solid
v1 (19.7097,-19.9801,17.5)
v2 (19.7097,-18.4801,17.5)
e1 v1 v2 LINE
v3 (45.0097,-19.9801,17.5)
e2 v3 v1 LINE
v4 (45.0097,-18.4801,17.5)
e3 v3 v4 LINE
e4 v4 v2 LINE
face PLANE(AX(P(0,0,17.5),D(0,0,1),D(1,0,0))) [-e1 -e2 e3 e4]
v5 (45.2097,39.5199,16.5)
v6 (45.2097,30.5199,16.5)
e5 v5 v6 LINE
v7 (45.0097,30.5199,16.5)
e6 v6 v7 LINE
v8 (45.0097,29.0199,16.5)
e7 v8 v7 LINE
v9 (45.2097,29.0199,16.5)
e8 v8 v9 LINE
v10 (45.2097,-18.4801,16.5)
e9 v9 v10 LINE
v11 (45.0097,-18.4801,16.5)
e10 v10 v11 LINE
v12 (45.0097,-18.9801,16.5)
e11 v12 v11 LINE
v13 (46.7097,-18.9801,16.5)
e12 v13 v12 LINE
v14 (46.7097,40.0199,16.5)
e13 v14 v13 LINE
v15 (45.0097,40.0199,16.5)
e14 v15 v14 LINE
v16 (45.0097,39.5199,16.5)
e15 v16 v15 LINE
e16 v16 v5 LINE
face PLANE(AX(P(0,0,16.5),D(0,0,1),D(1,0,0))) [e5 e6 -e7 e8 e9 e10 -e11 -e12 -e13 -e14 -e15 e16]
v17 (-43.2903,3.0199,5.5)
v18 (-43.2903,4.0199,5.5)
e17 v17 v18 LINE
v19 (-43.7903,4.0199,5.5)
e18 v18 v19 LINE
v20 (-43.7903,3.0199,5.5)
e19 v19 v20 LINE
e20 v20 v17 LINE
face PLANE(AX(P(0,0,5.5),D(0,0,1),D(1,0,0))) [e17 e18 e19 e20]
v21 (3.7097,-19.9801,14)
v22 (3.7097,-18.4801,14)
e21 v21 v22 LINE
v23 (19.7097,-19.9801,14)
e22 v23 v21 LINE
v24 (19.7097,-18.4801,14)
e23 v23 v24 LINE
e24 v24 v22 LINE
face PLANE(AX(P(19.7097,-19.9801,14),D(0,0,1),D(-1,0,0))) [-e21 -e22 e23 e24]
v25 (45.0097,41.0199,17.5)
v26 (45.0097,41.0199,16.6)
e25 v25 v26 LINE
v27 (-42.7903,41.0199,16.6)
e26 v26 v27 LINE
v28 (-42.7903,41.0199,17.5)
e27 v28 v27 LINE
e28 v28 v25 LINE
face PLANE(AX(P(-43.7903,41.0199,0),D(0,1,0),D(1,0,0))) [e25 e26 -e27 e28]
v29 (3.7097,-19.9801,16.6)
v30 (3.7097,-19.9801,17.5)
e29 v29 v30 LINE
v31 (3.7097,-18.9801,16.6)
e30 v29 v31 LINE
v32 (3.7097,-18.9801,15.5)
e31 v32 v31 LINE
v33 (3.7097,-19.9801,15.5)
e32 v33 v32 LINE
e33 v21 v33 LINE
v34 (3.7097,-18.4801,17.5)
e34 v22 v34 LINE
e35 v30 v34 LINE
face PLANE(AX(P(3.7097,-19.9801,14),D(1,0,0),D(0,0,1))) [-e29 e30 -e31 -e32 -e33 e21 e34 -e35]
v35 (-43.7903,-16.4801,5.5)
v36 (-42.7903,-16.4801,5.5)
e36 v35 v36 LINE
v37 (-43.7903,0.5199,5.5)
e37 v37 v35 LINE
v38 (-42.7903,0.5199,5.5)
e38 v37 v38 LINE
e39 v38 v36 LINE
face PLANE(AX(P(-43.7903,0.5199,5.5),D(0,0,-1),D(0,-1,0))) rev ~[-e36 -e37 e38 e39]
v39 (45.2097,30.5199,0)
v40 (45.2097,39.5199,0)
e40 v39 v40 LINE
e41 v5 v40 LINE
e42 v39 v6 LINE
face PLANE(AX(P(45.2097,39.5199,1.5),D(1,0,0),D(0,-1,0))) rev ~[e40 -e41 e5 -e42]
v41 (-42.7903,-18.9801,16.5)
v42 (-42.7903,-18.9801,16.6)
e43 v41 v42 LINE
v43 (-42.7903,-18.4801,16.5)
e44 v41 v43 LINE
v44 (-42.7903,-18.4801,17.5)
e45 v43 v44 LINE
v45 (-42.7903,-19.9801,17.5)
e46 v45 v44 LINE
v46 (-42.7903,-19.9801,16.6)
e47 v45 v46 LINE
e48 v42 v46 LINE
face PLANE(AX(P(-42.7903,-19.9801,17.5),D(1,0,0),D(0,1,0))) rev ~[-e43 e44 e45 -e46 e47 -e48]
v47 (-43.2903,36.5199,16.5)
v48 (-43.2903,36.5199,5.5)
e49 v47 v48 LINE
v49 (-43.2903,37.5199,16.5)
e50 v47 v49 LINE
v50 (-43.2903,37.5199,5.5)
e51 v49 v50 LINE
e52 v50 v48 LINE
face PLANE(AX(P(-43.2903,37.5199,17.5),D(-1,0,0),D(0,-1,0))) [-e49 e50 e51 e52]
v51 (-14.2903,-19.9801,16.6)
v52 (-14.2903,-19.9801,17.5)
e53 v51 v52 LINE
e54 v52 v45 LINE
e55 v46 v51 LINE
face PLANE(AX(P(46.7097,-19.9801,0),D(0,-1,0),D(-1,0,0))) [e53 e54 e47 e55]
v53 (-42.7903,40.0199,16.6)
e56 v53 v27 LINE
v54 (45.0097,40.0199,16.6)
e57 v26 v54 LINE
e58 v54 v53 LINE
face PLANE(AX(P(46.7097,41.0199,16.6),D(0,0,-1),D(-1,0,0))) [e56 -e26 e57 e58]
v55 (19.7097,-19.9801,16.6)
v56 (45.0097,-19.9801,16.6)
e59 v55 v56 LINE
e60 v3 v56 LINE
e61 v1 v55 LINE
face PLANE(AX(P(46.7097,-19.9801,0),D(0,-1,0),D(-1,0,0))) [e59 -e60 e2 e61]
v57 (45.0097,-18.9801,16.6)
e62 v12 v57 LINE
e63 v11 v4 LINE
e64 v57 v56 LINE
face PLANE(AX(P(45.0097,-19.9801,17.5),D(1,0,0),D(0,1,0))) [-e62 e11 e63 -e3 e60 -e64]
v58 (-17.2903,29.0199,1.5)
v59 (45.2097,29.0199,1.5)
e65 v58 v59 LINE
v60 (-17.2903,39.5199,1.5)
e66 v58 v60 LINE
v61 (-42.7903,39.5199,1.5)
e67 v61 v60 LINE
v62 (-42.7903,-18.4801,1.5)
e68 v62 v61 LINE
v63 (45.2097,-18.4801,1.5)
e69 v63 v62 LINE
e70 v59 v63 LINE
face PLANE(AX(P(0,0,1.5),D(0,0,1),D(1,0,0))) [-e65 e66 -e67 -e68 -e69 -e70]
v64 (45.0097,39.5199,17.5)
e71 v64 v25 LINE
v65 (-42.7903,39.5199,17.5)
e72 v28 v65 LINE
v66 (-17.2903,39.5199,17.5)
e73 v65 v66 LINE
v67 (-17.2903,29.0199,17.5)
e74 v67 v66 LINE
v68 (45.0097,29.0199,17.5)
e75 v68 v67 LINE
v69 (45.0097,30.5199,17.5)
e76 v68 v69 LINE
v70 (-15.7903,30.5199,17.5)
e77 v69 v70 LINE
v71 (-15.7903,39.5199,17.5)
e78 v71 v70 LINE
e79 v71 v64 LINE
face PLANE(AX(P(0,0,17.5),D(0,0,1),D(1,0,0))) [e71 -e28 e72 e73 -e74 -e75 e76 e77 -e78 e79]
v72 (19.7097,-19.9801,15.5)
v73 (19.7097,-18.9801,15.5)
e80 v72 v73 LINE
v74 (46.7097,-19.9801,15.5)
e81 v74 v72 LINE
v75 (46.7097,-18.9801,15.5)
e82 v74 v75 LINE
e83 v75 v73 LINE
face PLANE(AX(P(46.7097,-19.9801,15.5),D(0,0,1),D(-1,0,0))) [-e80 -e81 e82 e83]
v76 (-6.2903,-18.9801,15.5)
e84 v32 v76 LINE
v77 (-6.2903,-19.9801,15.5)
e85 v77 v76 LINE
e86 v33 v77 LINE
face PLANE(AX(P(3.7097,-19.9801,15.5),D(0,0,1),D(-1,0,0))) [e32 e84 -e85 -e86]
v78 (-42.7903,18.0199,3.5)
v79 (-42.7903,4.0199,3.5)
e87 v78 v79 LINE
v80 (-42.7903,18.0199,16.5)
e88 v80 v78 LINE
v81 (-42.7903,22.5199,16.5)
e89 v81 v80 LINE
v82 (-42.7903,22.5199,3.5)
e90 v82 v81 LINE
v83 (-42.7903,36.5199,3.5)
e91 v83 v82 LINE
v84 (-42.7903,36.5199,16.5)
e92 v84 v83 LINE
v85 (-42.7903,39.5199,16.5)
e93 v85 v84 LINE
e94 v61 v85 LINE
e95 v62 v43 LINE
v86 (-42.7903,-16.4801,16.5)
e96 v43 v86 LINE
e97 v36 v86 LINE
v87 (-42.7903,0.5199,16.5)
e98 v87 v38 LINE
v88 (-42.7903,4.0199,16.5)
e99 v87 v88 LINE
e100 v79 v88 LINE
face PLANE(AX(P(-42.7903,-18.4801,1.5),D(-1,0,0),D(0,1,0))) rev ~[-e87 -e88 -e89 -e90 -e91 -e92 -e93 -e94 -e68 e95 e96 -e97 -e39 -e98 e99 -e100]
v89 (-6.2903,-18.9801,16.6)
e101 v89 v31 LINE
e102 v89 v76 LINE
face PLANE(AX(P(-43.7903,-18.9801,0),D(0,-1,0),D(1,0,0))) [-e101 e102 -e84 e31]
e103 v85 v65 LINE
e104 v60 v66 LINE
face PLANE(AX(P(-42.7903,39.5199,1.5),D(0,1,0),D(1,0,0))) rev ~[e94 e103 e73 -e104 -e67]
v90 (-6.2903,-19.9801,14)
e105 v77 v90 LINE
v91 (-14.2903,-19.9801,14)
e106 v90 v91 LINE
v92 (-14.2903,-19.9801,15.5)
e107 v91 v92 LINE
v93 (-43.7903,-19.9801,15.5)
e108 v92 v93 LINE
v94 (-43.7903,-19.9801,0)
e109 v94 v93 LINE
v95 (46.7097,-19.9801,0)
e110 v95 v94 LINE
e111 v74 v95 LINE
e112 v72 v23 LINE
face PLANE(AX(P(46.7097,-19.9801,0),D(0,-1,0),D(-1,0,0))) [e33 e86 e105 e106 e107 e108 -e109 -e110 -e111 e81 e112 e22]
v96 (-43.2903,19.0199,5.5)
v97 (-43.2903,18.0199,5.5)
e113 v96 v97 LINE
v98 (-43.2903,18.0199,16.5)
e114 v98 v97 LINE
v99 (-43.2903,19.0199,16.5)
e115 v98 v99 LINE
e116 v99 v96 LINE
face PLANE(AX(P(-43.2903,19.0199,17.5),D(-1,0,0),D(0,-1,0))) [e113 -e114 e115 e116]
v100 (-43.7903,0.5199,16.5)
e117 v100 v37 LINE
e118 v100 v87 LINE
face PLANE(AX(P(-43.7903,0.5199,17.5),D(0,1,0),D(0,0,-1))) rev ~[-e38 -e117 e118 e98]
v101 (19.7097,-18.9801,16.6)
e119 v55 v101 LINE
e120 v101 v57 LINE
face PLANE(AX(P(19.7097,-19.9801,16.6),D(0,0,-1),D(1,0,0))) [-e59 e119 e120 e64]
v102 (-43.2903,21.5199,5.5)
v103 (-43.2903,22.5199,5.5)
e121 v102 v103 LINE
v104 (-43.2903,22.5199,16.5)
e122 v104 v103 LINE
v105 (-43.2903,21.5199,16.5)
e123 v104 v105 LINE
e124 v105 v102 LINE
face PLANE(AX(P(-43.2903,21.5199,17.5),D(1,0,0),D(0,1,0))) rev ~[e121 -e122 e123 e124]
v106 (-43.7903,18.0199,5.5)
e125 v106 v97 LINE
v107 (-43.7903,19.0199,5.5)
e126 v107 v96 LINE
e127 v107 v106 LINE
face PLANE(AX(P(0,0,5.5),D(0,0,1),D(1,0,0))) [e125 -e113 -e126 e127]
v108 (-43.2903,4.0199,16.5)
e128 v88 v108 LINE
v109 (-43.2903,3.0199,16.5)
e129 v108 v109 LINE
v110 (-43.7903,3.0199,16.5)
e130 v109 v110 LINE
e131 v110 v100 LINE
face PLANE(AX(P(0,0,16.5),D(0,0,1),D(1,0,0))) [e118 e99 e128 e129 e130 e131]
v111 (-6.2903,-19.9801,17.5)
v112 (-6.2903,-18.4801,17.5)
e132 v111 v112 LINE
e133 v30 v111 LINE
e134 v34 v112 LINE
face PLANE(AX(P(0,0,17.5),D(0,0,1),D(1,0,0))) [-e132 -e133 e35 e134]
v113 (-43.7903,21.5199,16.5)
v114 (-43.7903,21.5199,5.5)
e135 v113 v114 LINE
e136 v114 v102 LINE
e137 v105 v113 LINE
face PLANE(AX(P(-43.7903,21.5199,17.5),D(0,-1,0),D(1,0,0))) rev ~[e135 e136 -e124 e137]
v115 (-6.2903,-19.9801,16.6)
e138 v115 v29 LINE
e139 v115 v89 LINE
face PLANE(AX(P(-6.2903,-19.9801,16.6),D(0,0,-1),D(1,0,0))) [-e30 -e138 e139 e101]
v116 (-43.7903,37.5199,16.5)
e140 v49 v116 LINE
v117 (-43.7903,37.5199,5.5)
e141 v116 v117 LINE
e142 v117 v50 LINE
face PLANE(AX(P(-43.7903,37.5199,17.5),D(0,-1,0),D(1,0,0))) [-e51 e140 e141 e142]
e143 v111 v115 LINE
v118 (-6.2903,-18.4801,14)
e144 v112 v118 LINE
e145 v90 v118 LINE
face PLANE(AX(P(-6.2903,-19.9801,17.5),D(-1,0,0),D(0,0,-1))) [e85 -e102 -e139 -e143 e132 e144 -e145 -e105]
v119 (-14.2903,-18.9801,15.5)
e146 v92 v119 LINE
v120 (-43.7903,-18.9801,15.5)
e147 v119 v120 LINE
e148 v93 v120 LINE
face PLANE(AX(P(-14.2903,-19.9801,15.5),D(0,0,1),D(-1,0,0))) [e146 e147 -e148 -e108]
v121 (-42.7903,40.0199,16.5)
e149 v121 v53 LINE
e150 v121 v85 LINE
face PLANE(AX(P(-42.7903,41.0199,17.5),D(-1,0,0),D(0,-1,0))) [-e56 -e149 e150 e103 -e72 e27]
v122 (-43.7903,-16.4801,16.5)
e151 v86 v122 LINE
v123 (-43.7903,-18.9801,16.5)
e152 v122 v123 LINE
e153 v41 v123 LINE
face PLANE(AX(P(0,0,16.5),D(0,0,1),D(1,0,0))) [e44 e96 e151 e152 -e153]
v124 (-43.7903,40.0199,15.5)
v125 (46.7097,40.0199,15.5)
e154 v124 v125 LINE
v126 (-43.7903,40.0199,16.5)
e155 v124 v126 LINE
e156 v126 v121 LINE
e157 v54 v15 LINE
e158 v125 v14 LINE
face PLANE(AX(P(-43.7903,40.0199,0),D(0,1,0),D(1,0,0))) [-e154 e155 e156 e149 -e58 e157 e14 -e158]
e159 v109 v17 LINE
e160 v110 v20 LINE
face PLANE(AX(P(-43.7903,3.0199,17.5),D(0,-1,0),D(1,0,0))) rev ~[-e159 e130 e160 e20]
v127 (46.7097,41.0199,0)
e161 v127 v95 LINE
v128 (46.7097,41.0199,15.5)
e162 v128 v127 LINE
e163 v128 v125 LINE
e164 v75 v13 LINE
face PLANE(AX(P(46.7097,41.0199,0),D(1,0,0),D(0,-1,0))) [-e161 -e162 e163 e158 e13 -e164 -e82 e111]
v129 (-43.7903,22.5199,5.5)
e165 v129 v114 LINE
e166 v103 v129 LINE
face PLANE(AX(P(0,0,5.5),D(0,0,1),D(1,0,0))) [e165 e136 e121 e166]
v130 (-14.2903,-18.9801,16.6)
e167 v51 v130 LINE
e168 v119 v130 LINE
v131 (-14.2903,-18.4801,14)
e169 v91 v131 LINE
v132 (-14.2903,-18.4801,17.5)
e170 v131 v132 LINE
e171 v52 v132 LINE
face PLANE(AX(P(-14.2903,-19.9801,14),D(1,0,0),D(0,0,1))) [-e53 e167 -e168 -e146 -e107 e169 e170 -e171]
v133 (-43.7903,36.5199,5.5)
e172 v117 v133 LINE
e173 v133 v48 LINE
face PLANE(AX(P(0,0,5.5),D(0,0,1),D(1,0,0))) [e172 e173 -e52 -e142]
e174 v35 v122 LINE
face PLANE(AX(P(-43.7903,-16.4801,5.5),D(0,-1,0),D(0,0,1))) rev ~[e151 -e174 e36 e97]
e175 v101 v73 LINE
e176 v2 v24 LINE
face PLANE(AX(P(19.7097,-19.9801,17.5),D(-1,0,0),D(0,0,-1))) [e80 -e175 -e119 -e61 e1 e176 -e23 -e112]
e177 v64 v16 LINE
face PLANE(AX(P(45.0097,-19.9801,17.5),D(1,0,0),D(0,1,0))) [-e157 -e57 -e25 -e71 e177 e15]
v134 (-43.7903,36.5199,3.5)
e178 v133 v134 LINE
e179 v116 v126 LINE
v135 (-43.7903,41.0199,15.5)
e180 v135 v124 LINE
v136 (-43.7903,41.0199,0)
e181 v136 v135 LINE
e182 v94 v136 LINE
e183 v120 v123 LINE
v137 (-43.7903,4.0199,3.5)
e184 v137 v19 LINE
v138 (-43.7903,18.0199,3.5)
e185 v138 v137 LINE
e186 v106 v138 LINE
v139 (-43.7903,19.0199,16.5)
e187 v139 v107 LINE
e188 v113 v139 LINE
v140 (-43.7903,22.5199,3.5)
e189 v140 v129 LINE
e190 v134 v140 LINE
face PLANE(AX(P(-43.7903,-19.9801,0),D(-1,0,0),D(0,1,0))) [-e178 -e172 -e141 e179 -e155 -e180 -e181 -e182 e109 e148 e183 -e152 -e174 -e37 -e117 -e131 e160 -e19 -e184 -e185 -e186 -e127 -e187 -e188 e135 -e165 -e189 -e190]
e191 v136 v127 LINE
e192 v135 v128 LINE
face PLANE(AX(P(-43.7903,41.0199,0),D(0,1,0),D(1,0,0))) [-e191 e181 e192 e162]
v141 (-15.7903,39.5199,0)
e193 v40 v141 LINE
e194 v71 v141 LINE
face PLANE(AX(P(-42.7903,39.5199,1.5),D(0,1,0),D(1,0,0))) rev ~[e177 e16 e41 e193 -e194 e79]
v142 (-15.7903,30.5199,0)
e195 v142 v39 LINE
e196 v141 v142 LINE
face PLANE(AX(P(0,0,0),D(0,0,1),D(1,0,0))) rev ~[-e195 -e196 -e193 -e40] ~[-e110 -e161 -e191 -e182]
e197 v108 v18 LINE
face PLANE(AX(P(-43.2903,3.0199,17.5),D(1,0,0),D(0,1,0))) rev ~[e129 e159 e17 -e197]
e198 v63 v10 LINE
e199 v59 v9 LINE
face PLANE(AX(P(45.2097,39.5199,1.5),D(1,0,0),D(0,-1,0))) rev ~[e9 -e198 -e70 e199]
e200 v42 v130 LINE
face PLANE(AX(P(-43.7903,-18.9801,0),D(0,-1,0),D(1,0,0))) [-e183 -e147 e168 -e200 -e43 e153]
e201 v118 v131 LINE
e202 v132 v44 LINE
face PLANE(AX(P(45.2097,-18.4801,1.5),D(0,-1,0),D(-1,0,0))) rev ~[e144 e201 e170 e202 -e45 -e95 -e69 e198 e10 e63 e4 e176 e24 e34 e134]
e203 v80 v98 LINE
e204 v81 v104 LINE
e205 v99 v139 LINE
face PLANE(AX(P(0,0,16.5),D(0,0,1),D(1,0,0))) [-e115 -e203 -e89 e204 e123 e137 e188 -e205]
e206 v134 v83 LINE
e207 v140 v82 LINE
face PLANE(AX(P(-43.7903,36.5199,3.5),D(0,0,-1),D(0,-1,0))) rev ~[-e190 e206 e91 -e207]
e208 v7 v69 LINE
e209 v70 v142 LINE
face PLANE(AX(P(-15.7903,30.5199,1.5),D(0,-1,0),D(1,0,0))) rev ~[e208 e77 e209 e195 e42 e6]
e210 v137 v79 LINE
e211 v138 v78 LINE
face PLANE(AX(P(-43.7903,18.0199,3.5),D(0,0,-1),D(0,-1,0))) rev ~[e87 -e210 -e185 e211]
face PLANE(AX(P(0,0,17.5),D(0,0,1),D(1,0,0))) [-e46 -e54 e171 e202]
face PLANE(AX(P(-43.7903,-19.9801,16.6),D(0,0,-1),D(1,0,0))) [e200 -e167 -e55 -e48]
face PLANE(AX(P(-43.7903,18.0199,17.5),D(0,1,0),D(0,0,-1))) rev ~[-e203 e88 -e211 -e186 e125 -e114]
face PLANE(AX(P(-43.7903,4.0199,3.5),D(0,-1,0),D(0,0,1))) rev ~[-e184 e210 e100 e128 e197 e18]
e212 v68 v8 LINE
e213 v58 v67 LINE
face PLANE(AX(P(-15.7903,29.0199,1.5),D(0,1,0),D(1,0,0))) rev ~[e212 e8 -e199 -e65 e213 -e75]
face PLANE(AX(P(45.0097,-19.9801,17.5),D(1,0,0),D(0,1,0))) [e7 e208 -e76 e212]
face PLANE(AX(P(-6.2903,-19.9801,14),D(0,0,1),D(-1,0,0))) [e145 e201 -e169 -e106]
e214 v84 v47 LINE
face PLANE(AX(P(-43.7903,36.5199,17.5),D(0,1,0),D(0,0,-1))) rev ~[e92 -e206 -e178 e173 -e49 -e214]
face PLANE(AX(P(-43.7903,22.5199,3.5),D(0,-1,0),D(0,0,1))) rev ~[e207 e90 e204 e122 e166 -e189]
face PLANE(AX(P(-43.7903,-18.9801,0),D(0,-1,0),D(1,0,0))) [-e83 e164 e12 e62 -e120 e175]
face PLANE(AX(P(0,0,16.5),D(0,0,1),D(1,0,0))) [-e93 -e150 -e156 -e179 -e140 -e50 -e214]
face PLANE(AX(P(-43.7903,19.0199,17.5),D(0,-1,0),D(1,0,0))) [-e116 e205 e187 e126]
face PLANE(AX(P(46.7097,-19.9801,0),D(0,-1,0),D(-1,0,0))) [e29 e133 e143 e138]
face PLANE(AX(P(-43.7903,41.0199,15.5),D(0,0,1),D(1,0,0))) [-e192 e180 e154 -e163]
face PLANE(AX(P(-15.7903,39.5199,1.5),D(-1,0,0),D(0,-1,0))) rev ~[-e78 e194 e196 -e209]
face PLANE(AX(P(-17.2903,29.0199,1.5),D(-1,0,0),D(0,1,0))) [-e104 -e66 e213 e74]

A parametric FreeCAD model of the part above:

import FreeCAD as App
import Part
import Sketcher
from FreeCAD import Vector

doc = App.newDocument("Part")
body = doc.addObject("PartDesign::Body", "Body")

# Sketch on XY plane
sketch1 = body.newObject("Sketcher::SketchObject", "Sketch")
sketch1.AttachmentSupport = (doc.getObject("XY_Plane"), [""])
sketch1.MapMode = "FlatFace"
sketch1.addGeometry([
    Part.LineSegment(Vector(46.7097, 41.0199, 0), Vector(-43.7903, 41.0199, 0)),
    Part.LineSegment(Vector(-43.7903, 41.0199, 0), Vector(-43.7903, -19.9801, 0)),
    Part.LineSegment(Vector(-43.7903, -19.9801, 0), Vector(46.7097, -19.9801, 0)),
    Part.LineSegment(Vector(46.7097, -19.9801, 0), Vector(46.7097, 41.0199, 0)),
], False)
sketch1.addConstraint([
    Sketcher.Constraint("Coincident", 0, 2, 1, 1),
    Sketcher.Constraint("Coincident", 1, 2, 2, 1),
    Sketcher.Constraint("Coincident", 2, 2, 3, 1),
    Sketcher.Constraint("Coincident", 3, 2, 0, 1),
    Sketcher.Constraint("Horizontal", 0),
    Sketcher.Constraint("Vertical", 1),
    Sketcher.Constraint("Horizontal", 2),
    Sketcher.Constraint("Vertical", 3),
    Sketcher.Constraint("DistanceY", 1, 2, 1, 1, 61.0),
    Sketcher.Constraint("DistanceX", 0, 2, 0, 1, 90.5),
    Sketcher.Constraint("DistanceY", -1, 1, 0, 2, 41.02),
    Sketcher.Constraint("DistanceX", 0, 2, -1, 1, 43.7903),
])
pad1 = body.newObject("PartDesign::Pad", "Pad")
pad1.Profile = sketch1
pad1.Length = 1.5

# Sketch on XY plane
sketch2 = body.newObject("Sketcher::SketchObject", "Sketch001")
sketch2.AttachmentSupport = (doc.getObject("XY_Plane"), [""])
sketch2.MapMode = "FlatFace"
sketch2.AttachmentOffset = App.Placement(Vector(0, 0, 1.5), App.Rotation())
sketch2.addGeometry([
    Part.LineSegment(Vector(46.7097, 41.0199, 0), Vector(-43.7903, 41.0199, 0)),  # 0
    Part.LineSegment(Vector(-43.7903, 41.0199, 0), Vector(-43.7903, -19.9801, 0)),  # 1
    Part.LineSegment(Vector(-43.7903, -19.9801, 0), Vector(46.7097, -19.9801, 0)),  # 2
    Part.LineSegment(Vector(46.7097, -19.9801, 0), Vector(46.7097, 41.0199, 0)),  # 3
    Part.LineSegment(Vector(-42.7903, -18.4801, 0), Vector(-42.7903, 39.5199, 0)),  # 4
    Part.LineSegment(Vector(-42.7903, 39.5199, 0), Vector(45.2097, 39.5199, 0)),  # 5
    Part.LineSegment(Vector(45.2097, 39.5199, 0), Vector(45.2097, -18.4801, 0)),  # 6
    Part.LineSegment(Vector(45.2097, -18.4801, 0), Vector(-42.7903, -18.4801, 0)),  # 7
], False)
sketch2.addConstraint([
    Sketcher.Constraint("Coincident", 0, 2, 1, 1),
    Sketcher.Constraint("Coincident", 1, 2, 2, 1),
    Sketcher.Constraint("Coincident", 2, 2, 3, 1),
    Sketcher.Constraint("Coincident", 3, 2, 0, 1),
    Sketcher.Constraint("Coincident", 4, 2, 5, 1),
    Sketcher.Constraint("Coincident", 5, 2, 6, 1),
    Sketcher.Constraint("Coincident", 6, 2, 7, 1),
    Sketcher.Constraint("Coincident", 7, 2, 4, 1),
    Sketcher.Constraint("Horizontal", 0),
    Sketcher.Constraint("Vertical", 1),
    Sketcher.Constraint("Horizontal", 2),
    Sketcher.Constraint("Vertical", 3),
    Sketcher.Constraint("Vertical", 4),
    Sketcher.Constraint("Horizontal", 5),
    Sketcher.Constraint("Vertical", 6),
    Sketcher.Constraint("Horizontal", 7),
    Sketcher.Constraint("DistanceX", 0, 2, 4, 2, 1.0),
    Sketcher.Constraint("DistanceY", 4, 2, 0, 2, 1.5),
    Sketcher.Constraint("DistanceX", 5, 2, 3, 2, 1.5),
    Sketcher.Constraint("DistanceY", 2, 2, 6, 2, 1.5),
    Sketcher.Constraint("DistanceX", 5, 1, 5, 2, 88.0),
    Sketcher.Constraint("DistanceY", 1, 2, 1, 1, 61.0),
    Sketcher.Constraint("DistanceY", -1, 1, 0, 2, 41.02),
    Sketcher.Constraint("DistanceX", 0, 2, -1, 1, 43.7903),
])
pad2 = body.newObject("PartDesign::Pad", "Pad001")
pad2.Profile = sketch2
pad2.Length = 16

# Sketch on YZ plane
sketch3 = body.newObject("Sketcher::SketchObject", "Sketch002")
sketch3.AttachmentSupport = (doc.getObject("YZ_Plane"), [""])
sketch3.MapMode = "FlatFace"
sketch3.AttachmentOffset = App.Placement(Vector(0, 0, -43.7903), App.Rotation())
sketch3.addGeometry([
    Part.LineSegment(Vector(-16.4801, 5.5, 0), Vector(-16.4801, 17.5, 0)),  # 0
    Part.LineSegment(Vector(-16.4801, 17.5, 0), Vector(0.5199, 17.5, 0)),  # 1
    Part.LineSegment(Vector(0.5199, 17.5, 0), Vector(0.5199, 5.5, 0)),  # 2
    Part.LineSegment(Vector(0.5199, 5.5, 0), Vector(-16.4801, 5.5, 0)),  # 3
    Part.LineSegment(Vector(22.5199, 3.5, 0), Vector(22.5199, 17.5, 0)),  # 4
    Part.LineSegment(Vector(22.5199, 17.5, 0), Vector(36.5199, 17.5, 0)),  # 5
    Part.LineSegment(Vector(36.5199, 17.5, 0), Vector(36.5199, 3.5, 0)),  # 6
    Part.LineSegment(Vector(36.5199, 3.5, 0), Vector(22.5199, 3.5, 0)),  # 7
    Part.LineSegment(Vector(4.0199, 3.5, 0), Vector(4.0199, 17.5, 0)),  # 8
    Part.LineSegment(Vector(4.0199, 17.5, 0), Vector(18.0199, 17.5, 0)),  # 9
    Part.LineSegment(Vector(18.0199, 17.5, 0), Vector(18.0199, 3.5, 0)),  # 10
    Part.LineSegment(Vector(18.0199, 3.5, 0), Vector(4.0199, 3.5, 0)),  # 11
], False)
sketch3.addConstraint([
    Sketcher.Constraint("Coincident", 0, 2, 1, 1),
    Sketcher.Constraint("Coincident", 1, 2, 2, 1),
    Sketcher.Constraint("Coincident", 2, 2, 3, 1),
    Sketcher.Constraint("Coincident", 3, 2, 0, 1),
    Sketcher.Constraint("Coincident", 4, 2, 5, 1),
    Sketcher.Constraint("Coincident", 5, 2, 6, 1),
    Sketcher.Constraint("Coincident", 6, 2, 7, 1),
    Sketcher.Constraint("Coincident", 7, 2, 4, 1),
    Sketcher.Constraint("Coincident", 8, 2, 9, 1),
    Sketcher.Constraint("Coincident", 9, 2, 10, 1),
    Sketcher.Constraint("Coincident", 10, 2, 11, 1),
    Sketcher.Constraint("Coincident", 11, 2, 8, 1),
    Sketcher.Constraint("Vertical", 0),
    Sketcher.Constraint("Horizontal", 1),
    Sketcher.Constraint("Vertical", 2),
    Sketcher.Constraint("Horizontal", 3),
    Sketcher.Constraint("Vertical", 4),
    Sketcher.Constraint("Horizontal", 5),
    Sketcher.Constraint("Vertical", 6),
    Sketcher.Constraint("Horizontal", 7),
    Sketcher.Constraint("Vertical", 8),
    Sketcher.Constraint("Horizontal", 9),
    Sketcher.Constraint("Vertical", 10),
    Sketcher.Constraint("Horizontal", 11),
    Sketcher.Constraint("Horizontal", 1, 2, 4, 2),
    Sketcher.Constraint("Horizontal", 5, 2, 8, 2),
    Sketcher.Constraint("Horizontal", 7, 2, 10, 2),
    Sketcher.Constraint("Equal", 7, 9),
    Sketcher.Constraint("Equal", 11, 4),
    Sketcher.Constraint("DistanceX", 1, 1, 1, 2, 17.0),
    Sketcher.Constraint("DistanceX", 5, 1, 5, 2, 14.0),
    Sketcher.Constraint("DistanceY", 0, 1, 0, 2, 12.0),
    Sketcher.Constraint("DistanceY", -1, 1, 6, 2, 3.5),
    Sketcher.Constraint("DistanceX", 1, 2, 8, 2, 3.5),
    Sketcher.Constraint("DistanceX", 9, 2, 4, 2, 4.5),
    Sketcher.Constraint("DistanceX", 0, 2, -1, 1, 16.48),
])
pocket1 = body.newObject("PartDesign::Pocket", "Pocket")
pocket1.Profile = sketch3
pocket1.Length = 1
pocket1.Reversed = True

# Sketch on XY plane
sketch4 = body.newObject("Sketcher::SketchObject", "Sketch003")
sketch4.AttachmentSupport = (doc.getObject("XY_Plane"), [""])
sketch4.MapMode = "FlatFace"
sketch4.AttachmentOffset = App.Placement(Vector(0, 0, 1.5), App.Rotation())
sketch4.addGeometry([
    Part.LineSegment(Vector(45.2097, 30.5199, 0), Vector(45.2097, 39.5199, 0)),
    Part.LineSegment(Vector(45.2097, 39.5199, 0), Vector(-15.7903, 39.5199, 0)),
    Part.LineSegment(Vector(-15.7903, 39.5199, 0), Vector(-15.7903, 30.5199, 0)),
    Part.LineSegment(Vector(-15.7903, 30.5199, 0), Vector(45.2097, 30.5199, 0)),
], False)
sketch4.addConstraint([
    Sketcher.Constraint("Coincident", 0, 2, 1, 1),
    Sketcher.Constraint("Coincident", 1, 2, 2, 1),
    Sketcher.Constraint("Coincident", 2, 2, 3, 1),
    Sketcher.Constraint("Coincident", 3, 2, 0, 1),
    Sketcher.Constraint("Vertical", 0),
    Sketcher.Constraint("Horizontal", 1),
    Sketcher.Constraint("Vertical", 2),
    Sketcher.Constraint("Horizontal", 3),
    Sketcher.Constraint("DistanceX", 1, 2, 1, 1, 61.0),
    Sketcher.Constraint("DistanceY", 0, 1, 0, 2, 9.0),
    Sketcher.Constraint("DistanceY", -1, 1, 0, 2, 39.52),
    Sketcher.Constraint("DistanceX", -1, 1, 0, 2, 45.2097),
])
pocket2 = body.newObject("PartDesign::Pocket", "Pocket001")
pocket2.Profile = sketch4
pocket2.Length = 1.5

# Sketch on XY plane
sketch5 = body.newObject("Sketcher::SketchObject", "Sketch004")
sketch5.AttachmentSupport = (doc.getObject("XY_Plane"), [""])
sketch5.MapMode = "FlatFace"
sketch5.AttachmentOffset = App.Placement(Vector(0, 0, 1.5), App.Rotation())
sketch5.addGeometry([
    Part.LineSegment(Vector(45.2097, 29.0199, 0), Vector(45.2097, 30.5199, 0)),  # 0
    Part.LineSegment(Vector(45.2097, 30.5199, 0), Vector(-15.7903, 30.5199, 0)),  # 1
    Part.LineSegment(Vector(-15.7903, 30.5199, 0), Vector(-15.7903, 39.5199, 0)),  # 2
    Part.LineSegment(Vector(-15.7903, 39.5199, 0), Vector(-17.2903, 39.5199, 0)),  # 3
    Part.LineSegment(Vector(-17.2903, 39.5199, 0), Vector(-17.2903, 29.0199, 0)),  # 4
    Part.LineSegment(Vector(-17.2903, 29.0199, 0), Vector(45.2097, 29.0199, 0)),  # 5
], False)
sketch5.addConstraint([
    Sketcher.Constraint("Coincident", 0, 2, 1, 1),
    Sketcher.Constraint("Coincident", 1, 2, 2, 1),
    Sketcher.Constraint("Coincident", 2, 2, 3, 1),
    Sketcher.Constraint("Coincident", 3, 2, 4, 1),
    Sketcher.Constraint("Coincident", 4, 2, 5, 1),
    Sketcher.Constraint("Coincident", 5, 2, 0, 1),
    Sketcher.Constraint("Vertical", 0),
    Sketcher.Constraint("Horizontal", 1),
    Sketcher.Constraint("Vertical", 2),
    Sketcher.Constraint("Horizontal", 3),
    Sketcher.Constraint("Vertical", 4),
    Sketcher.Constraint("Horizontal", 5),
    Sketcher.Constraint("Equal", 3, 0),
    Sketcher.Constraint("DistanceX", 1, 2, 1, 1, 61.0),
    Sketcher.Constraint("DistanceY", 2, 1, 2, 2, 9.0),
    Sketcher.Constraint("DistanceX", 3, 2, 3, 1, 1.5),
    Sketcher.Constraint("DistanceY", -1, 1, 0, 2, 30.52),
    Sketcher.Constraint("DistanceX", -1, 1, 0, 2, 45.2097),
])
pad3 = body.newObject("PartDesign::Pad", "Pad002")
pad3.Profile = sketch5
pad3.Length = 16

# Sketch on XY plane
sketch6 = body.newObject("Sketcher::SketchObject", "Sketch005")
sketch6.AttachmentSupport = (doc.getObject("XY_Plane"), [""])
sketch6.MapMode = "FlatFace"
sketch6.AttachmentOffset = App.Placement(Vector(0, 0, 17.5), App.Rotation())
sketch6.addGeometry([
    Part.LineSegment(Vector(-43.7903, 4.0199, 0), Vector(-43.7903, 3.0199, 0)),
    Part.LineSegment(Vector(-43.7903, 3.0199, 0), Vector(-43.2903, 3.0199, 0)),
    Part.LineSegment(Vector(-43.2903, 3.0199, 0), Vector(-43.2903, 4.0199, 0)),
    Part.LineSegment(Vector(-43.2903, 4.0199, 0), Vector(-43.7903, 4.0199, 0)),
], False)
sketch6.addConstraint([
    Sketcher.Constraint("Coincident", 0, 2, 1, 1),
    Sketcher.Constraint("Coincident", 1, 2, 2, 1),
    Sketcher.Constraint("Coincident", 2, 2, 3, 1),
    Sketcher.Constraint("Coincident", 3, 2, 0, 1),
    Sketcher.Constraint("Vertical", 0),
    Sketcher.Constraint("Horizontal", 1),
    Sketcher.Constraint("Vertical", 2),
    Sketcher.Constraint("Horizontal", 3),
    Sketcher.Constraint("DistanceY", 0, 2, 0, 1, 1.0),
    Sketcher.Constraint("DistanceX", 1, 1, 1, 2, 0.5),
    Sketcher.Constraint("DistanceY", -1, 1, 0, 2, 3.02),
    Sketcher.Constraint("DistanceX", 0, 2, -1, 1, 43.7903),
])
pocket3 = body.newObject("PartDesign::Pocket", "Pocket002")
pocket3.Profile = sketch6
pocket3.Length = 12

# Sketch on XY plane
sketch7 = body.newObject("Sketcher::SketchObject", "Sketch006")
sketch7.AttachmentSupport = (doc.getObject("XY_Plane"), [""])
sketch7.MapMode = "FlatFace"
sketch7.AttachmentOffset = App.Placement(Vector(0, 0, 17.5), App.Rotation())
sketch7.addGeometry([
    Part.LineSegment(Vector(-43.7903, 19.0199, 0), Vector(-43.7903, 18.0199, 0)),
    Part.LineSegment(Vector(-43.7903, 18.0199, 0), Vector(-43.2903, 18.0199, 0)),
    Part.LineSegment(Vector(-43.2903, 18.0199, 0), Vector(-43.2903, 19.0199, 0)),
    Part.LineSegment(Vector(-43.2903, 19.0199, 0), Vector(-43.7903, 19.0199, 0)),
], False)
sketch7.addConstraint([
    Sketcher.Constraint("Coincident", 0, 2, 1, 1),
    Sketcher.Constraint("Coincident", 1, 2, 2, 1),
    Sketcher.Constraint("Coincident", 2, 2, 3, 1),
    Sketcher.Constraint("Coincident", 3, 2, 0, 1),
    Sketcher.Constraint("Vertical", 0),
    Sketcher.Constraint("Horizontal", 1),
    Sketcher.Constraint("Vertical", 2),
    Sketcher.Constraint("Horizontal", 3),
    Sketcher.Constraint("DistanceY", 0, 2, 0, 1, 1.0),
    Sketcher.Constraint("DistanceX", 1, 1, 1, 2, 0.5),
    Sketcher.Constraint("DistanceY", -1, 1, 0, 2, 18.02),
    Sketcher.Constraint("DistanceX", 0, 2, -1, 1, 43.7903),
])
pocket4 = body.newObject("PartDesign::Pocket", "Pocket003")
pocket4.Profile = sketch7
pocket4.Length = 12

# Sketch on XY plane
sketch8 = body.newObject("Sketcher::SketchObject", "Sketch007")
sketch8.AttachmentSupport = (doc.getObject("XY_Plane"), [""])
sketch8.MapMode = "FlatFace"
sketch8.AttachmentOffset = App.Placement(Vector(0, 0, 17.5), App.Rotation())
sketch8.addGeometry([
    Part.LineSegment(Vector(-43.2903, 22.5199, 0), Vector(-43.7903, 22.5199, 0)),
    Part.LineSegment(Vector(-43.7903, 22.5199, 0), Vector(-43.7903, 21.5199, 0)),
    Part.LineSegment(Vector(-43.7903, 21.5199, 0), Vector(-43.2903, 21.5199, 0)),
    Part.LineSegment(Vector(-43.2903, 21.5199, 0), Vector(-43.2903, 22.5199, 0)),
], False)
sketch8.addConstraint([
    Sketcher.Constraint("Coincident", 0, 2, 1, 1),
    Sketcher.Constraint("Coincident", 1, 2, 2, 1),
    Sketcher.Constraint("Coincident", 2, 2, 3, 1),
    Sketcher.Constraint("Coincident", 3, 2, 0, 1),
    Sketcher.Constraint("Horizontal", 0),
    Sketcher.Constraint("Vertical", 1),
    Sketcher.Constraint("Horizontal", 2),
    Sketcher.Constraint("Vertical", 3),
    Sketcher.Constraint("DistanceY", 1, 2, 1, 1, 1.0),
    Sketcher.Constraint("DistanceX", 0, 2, 0, 1, 0.5),
    Sketcher.Constraint("DistanceY", -1, 1, 0, 2, 22.52),
    Sketcher.Constraint("DistanceX", 0, 2, -1, 1, 43.7903),
])
pocket5 = body.newObject("PartDesign::Pocket", "Pocket004")
pocket5.Profile = sketch8
pocket5.Length = 12

# Sketch on XY plane
sketch9 = body.newObject("Sketcher::SketchObject", "Sketch008")
sketch9.AttachmentSupport = (doc.getObject("XY_Plane"), [""])
sketch9.MapMode = "FlatFace"
sketch9.AttachmentOffset = App.Placement(Vector(0, 0, 17.5), App.Rotation())
sketch9.addGeometry([
    Part.LineSegment(Vector(-43.7903, 37.5199, 0), Vector(-43.7903, 36.5199, 0)),
    Part.LineSegment(Vector(-43.7903, 36.5199, 0), Vector(-43.2903, 36.5199, 0)),
    Part.LineSegment(Vector(-43.2903, 36.5199, 0), Vector(-43.2903, 37.5199, 0)),
    Part.LineSegment(Vector(-43.2903, 37.5199, 0), Vector(-43.7903, 37.5199, 0)),
], False)
sketch9.addConstraint([
    Sketcher.Constraint("Coincident", 0, 2, 1, 1),
    Sketcher.Constraint("Coincident", 1, 2, 2, 1),
    Sketcher.Constraint("Coincident", 2, 2, 3, 1),
    Sketcher.Constraint("Coincident", 3, 2, 0, 1),
    Sketcher.Constraint("Vertical", 0),
    Sketcher.Constraint("Horizontal", 1),
    Sketcher.Constraint("Vertical", 2),
    Sketcher.Constraint("Horizontal", 3),
    Sketcher.Constraint("DistanceY", 0, 2, 0, 1, 1.0),
    Sketcher.Constraint("DistanceX", 1, 1, 1, 2, 0.5),
    Sketcher.Constraint("DistanceY", -1, 1, 0, 2, 36.52),
    Sketcher.Constraint("DistanceX", 0, 2, -1, 1, 43.7903),
])
pocket6 = body.newObject("PartDesign::Pocket", "Pocket005")
pocket6.Profile = sketch9
pocket6.Length = 12

# Sketch on XZ plane
sketch10 = body.newObject("Sketcher::SketchObject", "Sketch009")
sketch10.AttachmentSupport = (doc.getObject("XZ_Plane"), [""])
sketch10.MapMode = "FlatFace"
sketch10.AttachmentOffset = App.Placement(Vector(0, 0, 19.9801), App.Rotation())
sketch10.addGeometry([
    Part.LineSegment(Vector(-6.2903, 17.5, 0), Vector(-14.2903, 17.5, 0)),  # 0
    Part.LineSegment(Vector(-14.2903, 17.5, 0), Vector(-14.2903, 14, 0)),  # 1
    Part.LineSegment(Vector(-14.2903, 14, 0), Vector(-6.2903, 14, 0)),  # 2
    Part.LineSegment(Vector(-6.2903, 14, 0), Vector(-6.2903, 17.5, 0)),  # 3
    Part.LineSegment(Vector(19.7097, 17.5, 0), Vector(3.7097, 17.5, 0)),  # 4
    Part.LineSegment(Vector(3.7097, 17.5, 0), Vector(3.7097, 14, 0)),  # 5
    Part.LineSegment(Vector(3.7097, 14, 0), Vector(19.7097, 14, 0)),  # 6
    Part.LineSegment(Vector(19.7097, 14, 0), Vector(19.7097, 17.5, 0)),  # 7
], False)
sketch10.addConstraint([
    Sketcher.Constraint("Coincident", 0, 2, 1, 1),
    Sketcher.Constraint("Coincident", 1, 2, 2, 1),
    Sketcher.Constraint("Coincident", 2, 2, 3, 1),
    Sketcher.Constraint("Coincident", 3, 2, 0, 1),
    Sketcher.Constraint("Coincident", 4, 2, 5, 1),
    Sketcher.Constraint("Coincident", 5, 2, 6, 1),
    Sketcher.Constraint("Coincident", 6, 2, 7, 1),
    Sketcher.Constraint("Coincident", 7, 2, 4, 1),
    Sketcher.Constraint("Horizontal", 0),
    Sketcher.Constraint("Vertical", 1),
    Sketcher.Constraint("Horizontal", 2),
    Sketcher.Constraint("Vertical", 3),
    Sketcher.Constraint("Horizontal", 4),
    Sketcher.Constraint("Vertical", 5),
    Sketcher.Constraint("Horizontal", 6),
    Sketcher.Constraint("Vertical", 7),
    Sketcher.Constraint("Horizontal", 3, 2, 4, 2),
    Sketcher.Constraint("Horizontal", 2, 2, 5, 2),
    Sketcher.Constraint("DistanceX", 0, 2, 0, 1, 8.0),
    Sketcher.Constraint("DistanceX", 4, 2, 4, 1, 16.0),
    Sketcher.Constraint("DistanceX", 3, 2, 4, 2, 10.0),
    Sketcher.Constraint("DistanceY", 1, 2, 1, 1, 3.5),
    Sketcher.Constraint("DistanceY", -1, 1, 1, 2, 14.0),
    Sketcher.Constraint("DistanceX", 0, 2, -1, 1, 14.2903),
])
pocket7 = body.newObject("PartDesign::Pocket", "Pocket006")
pocket7.Profile = sketch10
pocket7.Length = 1.5

# Sketch on XZ plane
sketch11 = body.newObject("Sketcher::SketchObject", "Sketch010")
sketch11.AttachmentSupport = (doc.getObject("XZ_Plane"), [""])
sketch11.MapMode = "FlatFace"
sketch11.AttachmentOffset = App.Placement(Vector(0, 0, 19.9801), App.Rotation())
sketch11.addGeometry([
    Part.LineSegment(Vector(46.7097, 16.6, 0), Vector(19.7097, 16.6, 0)),  # 0
    Part.LineSegment(Vector(19.7097, 16.6, 0), Vector(19.7097, 15.5, 0)),  # 1
    Part.LineSegment(Vector(19.7097, 15.5, 0), Vector(46.7097, 15.5, 0)),  # 2
    Part.LineSegment(Vector(46.7097, 15.5, 0), Vector(46.7097, 16.6, 0)),  # 3
    Part.LineSegment(Vector(3.7097, 16.6, 0), Vector(-6.2903, 16.6, 0)),  # 4
    Part.LineSegment(Vector(-6.2903, 16.6, 0), Vector(-6.2903, 15.5, 0)),  # 5
    Part.LineSegment(Vector(-6.2903, 15.5, 0), Vector(3.7097, 15.5, 0)),  # 6
    Part.LineSegment(Vector(3.7097, 15.5, 0), Vector(3.7097, 16.6, 0)),  # 7
    Part.LineSegment(Vector(-43.7903, 16.6, 0), Vector(-43.7903, 15.5, 0)),  # 8
    Part.LineSegment(Vector(-43.7903, 15.5, 0), Vector(-14.2903, 15.5, 0)),  # 9
    Part.LineSegment(Vector(-14.2903, 15.5, 0), Vector(-14.2903, 16.6, 0)),  # 10
    Part.LineSegment(Vector(-14.2903, 16.6, 0), Vector(-43.7903, 16.6, 0)),  # 11
], False)
sketch11.addConstraint([
    Sketcher.Constraint("Coincident", 0, 2, 1, 1),
    Sketcher.Constraint("Coincident", 1, 2, 2, 1),
    Sketcher.Constraint("Coincident", 2, 2, 3, 1),
    Sketcher.Constraint("Coincident", 3, 2, 0, 1),
    Sketcher.Constraint("Coincident", 4, 2, 5, 1),
    Sketcher.Constraint("Coincident", 5, 2, 6, 1),
    Sketcher.Constraint("Coincident", 6, 2, 7, 1),
    Sketcher.Constraint("Coincident", 7, 2, 4, 1),
    Sketcher.Constraint("Coincident", 8, 2, 9, 1),
    Sketcher.Constraint("Coincident", 9, 2, 10, 1),
    Sketcher.Constraint("Coincident", 10, 2, 11, 1),
    Sketcher.Constraint("Coincident", 11, 2, 8, 1),
    Sketcher.Constraint("Horizontal", 0),
    Sketcher.Constraint("Vertical", 1),
    Sketcher.Constraint("Horizontal", 2),
    Sketcher.Constraint("Vertical", 3),
    Sketcher.Constraint("Horizontal", 4),
    Sketcher.Constraint("Vertical", 5),
    Sketcher.Constraint("Horizontal", 6),
    Sketcher.Constraint("Vertical", 7),
    Sketcher.Constraint("Vertical", 8),
    Sketcher.Constraint("Horizontal", 9),
    Sketcher.Constraint("Vertical", 10),
    Sketcher.Constraint("Horizontal", 11),
    Sketcher.Constraint("Horizontal", 3, 2, 4, 2),
    Sketcher.Constraint("Horizontal", 2, 2, 5, 2),
    Sketcher.Constraint("Horizontal", 6, 2, 8, 2),
    Sketcher.Constraint("Horizontal", 7, 2, 10, 2),
    Sketcher.Constraint("DistanceY", 1, 2, 1, 1, 1.1),
    Sketcher.Constraint("DistanceX", 0, 2, 0, 1, 27.0),
    Sketcher.Constraint("DistanceX", 4, 2, 4, 1, 10.0),
    Sketcher.Constraint("DistanceX", 9, 1, 9, 2, 29.5),
    Sketcher.Constraint("DistanceX", 4, 2, 0, 2, 26.0),
    Sketcher.Constraint("DistanceX", 9, 2, 5, 2, 8.0),
    Sketcher.Constraint("DistanceY", -1, 1, 0, 2, 16.6),
    Sketcher.Constraint("DistanceX", -1, 1, 0, 2, 19.7097),
])
pocket8 = body.newObject("PartDesign::Pocket", "Pocket007")
pocket8.Profile = sketch11
pocket8.Length = 1

# Sketch on XZ plane
sketch12 = body.newObject("Sketcher::SketchObject", "Sketch011")
sketch12.AttachmentSupport = (doc.getObject("XZ_Plane"), [""])
sketch12.MapMode = "FlatFace"
sketch12.AttachmentOffset = App.Placement(Vector(0, 0, -41.0199), App.Rotation())
sketch12.addGeometry([
    Part.LineSegment(Vector(46.7097, 16.6, 0), Vector(46.7097, 15.5, 0)),
    Part.LineSegment(Vector(46.7097, 15.5, 0), Vector(-43.7903, 15.5, 0)),
    Part.LineSegment(Vector(-43.7903, 15.5, 0), Vector(-43.7903, 16.6, 0)),
    Part.LineSegment(Vector(-43.7903, 16.6, 0), Vector(46.7097, 16.6, 0)),
], False)
sketch12.addConstraint([
    Sketcher.Constraint("Coincident", 0, 2, 1, 1),
    Sketcher.Constraint("Coincident", 1, 2, 2, 1),
    Sketcher.Constraint("Coincident", 2, 2, 3, 1),
    Sketcher.Constraint("Coincident", 3, 2, 0, 1),
    Sketcher.Constraint("Vertical", 0),
    Sketcher.Constraint("Horizontal", 1),
    Sketcher.Constraint("Vertical", 2),
    Sketcher.Constraint("Horizontal", 3),
    Sketcher.Constraint("DistanceY", 0, 2, 0, 1, 1.1),
    Sketcher.Constraint("DistanceX", 1, 2, 1, 1, 90.5),
    Sketcher.Constraint("DistanceY", -1, 1, 0, 2, 15.5),
    Sketcher.Constraint("DistanceX", -1, 1, 0, 2, 46.7097),
])
pocket9 = body.newObject("PartDesign::Pocket", "Pocket008")
pocket9.Profile = sketch12
pocket9.Length = 1
pocket9.Reversed = True

# Sketch on XY plane
sketch13 = body.newObject("Sketcher::SketchObject", "Sketch012")
sketch13.AttachmentSupport = (doc.getObject("XY_Plane"), [""])
sketch13.MapMode = "FlatFace"
sketch13.AttachmentOffset = App.Placement(Vector(0, 0, 17.5), App.Rotation())
sketch13.addGeometry([
    Part.LineSegment(Vector(-42.7903, -19.9801, 0), Vector(-42.7903, -16.4801, 0)),
    Part.LineSegment(Vector(-42.7903, -16.4801, 0), Vector(-43.7903, -16.4801, 0)),
    Part.LineSegment(Vector(-43.7903, -16.4801, 0), Vector(-43.7903, -19.9801, 0)),
    Part.LineSegment(Vector(-43.7903, -19.9801, 0), Vector(-42.7903, -19.9801, 0)),
], False)
sketch13.addConstraint([
    Sketcher.Constraint("Coincident", 0, 2, 1, 1),
    Sketcher.Constraint("Coincident", 1, 2, 2, 1),
    Sketcher.Constraint("Coincident", 2, 2, 3, 1),
    Sketcher.Constraint("Coincident", 3, 2, 0, 1),
    Sketcher.Constraint("Vertical", 0),
    Sketcher.Constraint("Horizontal", 1),
    Sketcher.Constraint("Vertical", 2),
    Sketcher.Constraint("Horizontal", 3),
    Sketcher.Constraint("DistanceX", 1, 2, 1, 1, 1.0),
    Sketcher.Constraint("DistanceY", 0, 1, 0, 2, 3.5),
    Sketcher.Constraint("DistanceY", 0, 2, -1, 1, 16.48),
    Sketcher.Constraint("DistanceX", 0, 2, -1, 1, 42.7903),
])
pocket10 = body.newObject("PartDesign::Pocket", "Pocket009")
pocket10.Profile = sketch13
pocket10.Length = 1

# Sketch on XY plane
sketch14 = body.newObject("Sketcher::SketchObject", "Sketch013")
sketch14.AttachmentSupport = (doc.getObject("XY_Plane"), [""])
sketch14.MapMode = "FlatFace"
sketch14.AttachmentOffset = App.Placement(Vector(0, 0, 17.5), App.Rotation())
sketch14.addGeometry([
    Part.LineSegment(Vector(-42.7903, 0.5199, 0), Vector(-42.7903, 4.0199, 0)),
    Part.LineSegment(Vector(-42.7903, 4.0199, 0), Vector(-43.7903, 4.0199, 0)),
    Part.LineSegment(Vector(-43.7903, 4.0199, 0), Vector(-43.7903, 0.5199, 0)),
    Part.LineSegment(Vector(-43.7903, 0.5199, 0), Vector(-42.7903, 0.5199, 0)),
], False)
sketch14.addConstraint([
    Sketcher.Constraint("Coincident", 0, 2, 1, 1),
    Sketcher.Constraint("Coincident", 1, 2, 2, 1),
    Sketcher.Constraint("Coincident", 2, 2, 3, 1),
    Sketcher.Constraint("Coincident", 3, 2, 0, 1),
    Sketcher.Constraint("Vertical", 0),
    Sketcher.Constraint("Horizontal", 1),
    Sketcher.Constraint("Vertical", 2),
    Sketcher.Constraint("Horizontal", 3),
    Sketcher.Constraint("DistanceX", 1, 2, 1, 1, 1.0),
    Sketcher.Constraint("DistanceY", 0, 1, 0, 2, 3.5),
    Sketcher.Constraint("DistanceY", -1, 1, 0, 2, 4.02),
    Sketcher.Constraint("DistanceX", 0, 2, -1, 1, 42.7903),
])
pocket11 = body.newObject("PartDesign::Pocket", "Pocket010")
pocket11.Profile = sketch14
pocket11.Length = 1

# Sketch on XY plane
sketch15 = body.newObject("Sketcher::SketchObject", "Sketch014")
sketch15.AttachmentSupport = (doc.getObject("XY_Plane"), [""])
sketch15.MapMode = "FlatFace"
sketch15.AttachmentOffset = App.Placement(Vector(0, 0, 17.5), App.Rotation())
sketch15.addGeometry([
    Part.LineSegment(Vector(-43.7903, 22.5199, 0), Vector(-43.7903, 18.0199, 0)),
    Part.LineSegment(Vector(-43.7903, 18.0199, 0), Vector(-42.7903, 18.0199, 0)),
    Part.LineSegment(Vector(-42.7903, 18.0199, 0), Vector(-42.7903, 22.5199, 0)),
    Part.LineSegment(Vector(-42.7903, 22.5199, 0), Vector(-43.7903, 22.5199, 0)),
], False)
sketch15.addConstraint([
    Sketcher.Constraint("Coincident", 0, 2, 1, 1),
    Sketcher.Constraint("Coincident", 1, 2, 2, 1),
    Sketcher.Constraint("Coincident", 2, 2, 3, 1),
    Sketcher.Constraint("Coincident", 3, 2, 0, 1),
    Sketcher.Constraint("Vertical", 0),
    Sketcher.Constraint("Horizontal", 1),
    Sketcher.Constraint("Vertical", 2),
    Sketcher.Constraint("Horizontal", 3),
    Sketcher.Constraint("DistanceX", 1, 1, 1, 2, 1.0),
    Sketcher.Constraint("DistanceY", 0, 2, 0, 1, 4.5),
    Sketcher.Constraint("DistanceY", -1, 1, 0, 2, 18.02),
    Sketcher.Constraint("DistanceX", 0, 2, -1, 1, 43.7903),
])
pocket12 = body.newObject("PartDesign::Pocket", "Pocket011")
pocket12.Profile = sketch15
pocket12.Length = 1

# Sketch on XY plane
sketch16 = body.newObject("Sketcher::SketchObject", "Sketch015")
sketch16.AttachmentSupport = (doc.getObject("XY_Plane"), [""])
sketch16.MapMode = "FlatFace"
sketch16.AttachmentOffset = App.Placement(Vector(0, 0, 17.5), App.Rotation())
sketch16.addGeometry([
    Part.LineSegment(Vector(-42.7903, 41.0199, 0), Vector(-43.7903, 41.0199, 0)),
    Part.LineSegment(Vector(-43.7903, 41.0199, 0), Vector(-43.7903, 36.5199, 0)),
    Part.LineSegment(Vector(-43.7903, 36.5199, 0), Vector(-42.7903, 36.5199, 0)),
    Part.LineSegment(Vector(-42.7903, 36.5199, 0), Vector(-42.7903, 41.0199, 0)),
], False)
sketch16.addConstraint([
    Sketcher.Constraint("Coincident", 0, 2, 1, 1),
    Sketcher.Constraint("Coincident", 1, 2, 2, 1),
    Sketcher.Constraint("Coincident", 2, 2, 3, 1),
    Sketcher.Constraint("Coincident", 3, 2, 0, 1),
    Sketcher.Constraint("Horizontal", 0),
    Sketcher.Constraint("Vertical", 1),
    Sketcher.Constraint("Horizontal", 2),
    Sketcher.Constraint("Vertical", 3),
    Sketcher.Constraint("DistanceX", 0, 2, 0, 1, 1.0),
    Sketcher.Constraint("DistanceY", 1, 2, 1, 1, 4.5),
    Sketcher.Constraint("DistanceY", -1, 1, 0, 2, 41.02),
    Sketcher.Constraint("DistanceX", 0, 2, -1, 1, 43.7903),
])
pocket13 = body.newObject("PartDesign::Pocket", "Pocket012")
pocket13.Profile = sketch16
pocket13.Length = 1

# Sketch on XY plane
sketch17 = body.newObject("Sketcher::SketchObject", "Sketch016")
sketch17.AttachmentSupport = (doc.getObject("XY_Plane"), [""])
sketch17.MapMode = "FlatFace"
sketch17.AttachmentOffset = App.Placement(Vector(0, 0, 17.5), App.Rotation())
sketch17.addGeometry([
    Part.LineSegment(Vector(45.0097, -19.9801, 0), Vector(46.7097, -19.9801, 0)),
    Part.LineSegment(Vector(46.7097, -19.9801, 0), Vector(46.7097, 41.0199, 0)),
    Part.LineSegment(Vector(46.7097, 41.0199, 0), Vector(45.0097, 41.0199, 0)),
    Part.LineSegment(Vector(45.0097, 41.0199, 0), Vector(45.0097, -19.9801, 0)),
], False)
sketch17.addConstraint([
    Sketcher.Constraint("Coincident", 0, 2, 1, 1),
    Sketcher.Constraint("Coincident", 1, 2, 2, 1),
    Sketcher.Constraint("Coincident", 2, 2, 3, 1),
    Sketcher.Constraint("Coincident", 3, 2, 0, 1),
    Sketcher.Constraint("Horizontal", 0),
    Sketcher.Constraint("Vertical", 1),
    Sketcher.Constraint("Horizontal", 2),
    Sketcher.Constraint("Vertical", 3),
    Sketcher.Constraint("DistanceY", 1, 1, 1, 2, 61.0),
    Sketcher.Constraint("DistanceX", 0, 1, 0, 2, 1.7),
    Sketcher.Constraint("DistanceY", 0, 2, -1, 1, 19.98),
    Sketcher.Constraint("DistanceX", -1, 1, 0, 2, 46.7097),
])
pocket14 = body.newObject("PartDesign::Pocket", "Pocket013")
pocket14.Profile = sketch17
pocket14.Length = 1

doc.recompute()
